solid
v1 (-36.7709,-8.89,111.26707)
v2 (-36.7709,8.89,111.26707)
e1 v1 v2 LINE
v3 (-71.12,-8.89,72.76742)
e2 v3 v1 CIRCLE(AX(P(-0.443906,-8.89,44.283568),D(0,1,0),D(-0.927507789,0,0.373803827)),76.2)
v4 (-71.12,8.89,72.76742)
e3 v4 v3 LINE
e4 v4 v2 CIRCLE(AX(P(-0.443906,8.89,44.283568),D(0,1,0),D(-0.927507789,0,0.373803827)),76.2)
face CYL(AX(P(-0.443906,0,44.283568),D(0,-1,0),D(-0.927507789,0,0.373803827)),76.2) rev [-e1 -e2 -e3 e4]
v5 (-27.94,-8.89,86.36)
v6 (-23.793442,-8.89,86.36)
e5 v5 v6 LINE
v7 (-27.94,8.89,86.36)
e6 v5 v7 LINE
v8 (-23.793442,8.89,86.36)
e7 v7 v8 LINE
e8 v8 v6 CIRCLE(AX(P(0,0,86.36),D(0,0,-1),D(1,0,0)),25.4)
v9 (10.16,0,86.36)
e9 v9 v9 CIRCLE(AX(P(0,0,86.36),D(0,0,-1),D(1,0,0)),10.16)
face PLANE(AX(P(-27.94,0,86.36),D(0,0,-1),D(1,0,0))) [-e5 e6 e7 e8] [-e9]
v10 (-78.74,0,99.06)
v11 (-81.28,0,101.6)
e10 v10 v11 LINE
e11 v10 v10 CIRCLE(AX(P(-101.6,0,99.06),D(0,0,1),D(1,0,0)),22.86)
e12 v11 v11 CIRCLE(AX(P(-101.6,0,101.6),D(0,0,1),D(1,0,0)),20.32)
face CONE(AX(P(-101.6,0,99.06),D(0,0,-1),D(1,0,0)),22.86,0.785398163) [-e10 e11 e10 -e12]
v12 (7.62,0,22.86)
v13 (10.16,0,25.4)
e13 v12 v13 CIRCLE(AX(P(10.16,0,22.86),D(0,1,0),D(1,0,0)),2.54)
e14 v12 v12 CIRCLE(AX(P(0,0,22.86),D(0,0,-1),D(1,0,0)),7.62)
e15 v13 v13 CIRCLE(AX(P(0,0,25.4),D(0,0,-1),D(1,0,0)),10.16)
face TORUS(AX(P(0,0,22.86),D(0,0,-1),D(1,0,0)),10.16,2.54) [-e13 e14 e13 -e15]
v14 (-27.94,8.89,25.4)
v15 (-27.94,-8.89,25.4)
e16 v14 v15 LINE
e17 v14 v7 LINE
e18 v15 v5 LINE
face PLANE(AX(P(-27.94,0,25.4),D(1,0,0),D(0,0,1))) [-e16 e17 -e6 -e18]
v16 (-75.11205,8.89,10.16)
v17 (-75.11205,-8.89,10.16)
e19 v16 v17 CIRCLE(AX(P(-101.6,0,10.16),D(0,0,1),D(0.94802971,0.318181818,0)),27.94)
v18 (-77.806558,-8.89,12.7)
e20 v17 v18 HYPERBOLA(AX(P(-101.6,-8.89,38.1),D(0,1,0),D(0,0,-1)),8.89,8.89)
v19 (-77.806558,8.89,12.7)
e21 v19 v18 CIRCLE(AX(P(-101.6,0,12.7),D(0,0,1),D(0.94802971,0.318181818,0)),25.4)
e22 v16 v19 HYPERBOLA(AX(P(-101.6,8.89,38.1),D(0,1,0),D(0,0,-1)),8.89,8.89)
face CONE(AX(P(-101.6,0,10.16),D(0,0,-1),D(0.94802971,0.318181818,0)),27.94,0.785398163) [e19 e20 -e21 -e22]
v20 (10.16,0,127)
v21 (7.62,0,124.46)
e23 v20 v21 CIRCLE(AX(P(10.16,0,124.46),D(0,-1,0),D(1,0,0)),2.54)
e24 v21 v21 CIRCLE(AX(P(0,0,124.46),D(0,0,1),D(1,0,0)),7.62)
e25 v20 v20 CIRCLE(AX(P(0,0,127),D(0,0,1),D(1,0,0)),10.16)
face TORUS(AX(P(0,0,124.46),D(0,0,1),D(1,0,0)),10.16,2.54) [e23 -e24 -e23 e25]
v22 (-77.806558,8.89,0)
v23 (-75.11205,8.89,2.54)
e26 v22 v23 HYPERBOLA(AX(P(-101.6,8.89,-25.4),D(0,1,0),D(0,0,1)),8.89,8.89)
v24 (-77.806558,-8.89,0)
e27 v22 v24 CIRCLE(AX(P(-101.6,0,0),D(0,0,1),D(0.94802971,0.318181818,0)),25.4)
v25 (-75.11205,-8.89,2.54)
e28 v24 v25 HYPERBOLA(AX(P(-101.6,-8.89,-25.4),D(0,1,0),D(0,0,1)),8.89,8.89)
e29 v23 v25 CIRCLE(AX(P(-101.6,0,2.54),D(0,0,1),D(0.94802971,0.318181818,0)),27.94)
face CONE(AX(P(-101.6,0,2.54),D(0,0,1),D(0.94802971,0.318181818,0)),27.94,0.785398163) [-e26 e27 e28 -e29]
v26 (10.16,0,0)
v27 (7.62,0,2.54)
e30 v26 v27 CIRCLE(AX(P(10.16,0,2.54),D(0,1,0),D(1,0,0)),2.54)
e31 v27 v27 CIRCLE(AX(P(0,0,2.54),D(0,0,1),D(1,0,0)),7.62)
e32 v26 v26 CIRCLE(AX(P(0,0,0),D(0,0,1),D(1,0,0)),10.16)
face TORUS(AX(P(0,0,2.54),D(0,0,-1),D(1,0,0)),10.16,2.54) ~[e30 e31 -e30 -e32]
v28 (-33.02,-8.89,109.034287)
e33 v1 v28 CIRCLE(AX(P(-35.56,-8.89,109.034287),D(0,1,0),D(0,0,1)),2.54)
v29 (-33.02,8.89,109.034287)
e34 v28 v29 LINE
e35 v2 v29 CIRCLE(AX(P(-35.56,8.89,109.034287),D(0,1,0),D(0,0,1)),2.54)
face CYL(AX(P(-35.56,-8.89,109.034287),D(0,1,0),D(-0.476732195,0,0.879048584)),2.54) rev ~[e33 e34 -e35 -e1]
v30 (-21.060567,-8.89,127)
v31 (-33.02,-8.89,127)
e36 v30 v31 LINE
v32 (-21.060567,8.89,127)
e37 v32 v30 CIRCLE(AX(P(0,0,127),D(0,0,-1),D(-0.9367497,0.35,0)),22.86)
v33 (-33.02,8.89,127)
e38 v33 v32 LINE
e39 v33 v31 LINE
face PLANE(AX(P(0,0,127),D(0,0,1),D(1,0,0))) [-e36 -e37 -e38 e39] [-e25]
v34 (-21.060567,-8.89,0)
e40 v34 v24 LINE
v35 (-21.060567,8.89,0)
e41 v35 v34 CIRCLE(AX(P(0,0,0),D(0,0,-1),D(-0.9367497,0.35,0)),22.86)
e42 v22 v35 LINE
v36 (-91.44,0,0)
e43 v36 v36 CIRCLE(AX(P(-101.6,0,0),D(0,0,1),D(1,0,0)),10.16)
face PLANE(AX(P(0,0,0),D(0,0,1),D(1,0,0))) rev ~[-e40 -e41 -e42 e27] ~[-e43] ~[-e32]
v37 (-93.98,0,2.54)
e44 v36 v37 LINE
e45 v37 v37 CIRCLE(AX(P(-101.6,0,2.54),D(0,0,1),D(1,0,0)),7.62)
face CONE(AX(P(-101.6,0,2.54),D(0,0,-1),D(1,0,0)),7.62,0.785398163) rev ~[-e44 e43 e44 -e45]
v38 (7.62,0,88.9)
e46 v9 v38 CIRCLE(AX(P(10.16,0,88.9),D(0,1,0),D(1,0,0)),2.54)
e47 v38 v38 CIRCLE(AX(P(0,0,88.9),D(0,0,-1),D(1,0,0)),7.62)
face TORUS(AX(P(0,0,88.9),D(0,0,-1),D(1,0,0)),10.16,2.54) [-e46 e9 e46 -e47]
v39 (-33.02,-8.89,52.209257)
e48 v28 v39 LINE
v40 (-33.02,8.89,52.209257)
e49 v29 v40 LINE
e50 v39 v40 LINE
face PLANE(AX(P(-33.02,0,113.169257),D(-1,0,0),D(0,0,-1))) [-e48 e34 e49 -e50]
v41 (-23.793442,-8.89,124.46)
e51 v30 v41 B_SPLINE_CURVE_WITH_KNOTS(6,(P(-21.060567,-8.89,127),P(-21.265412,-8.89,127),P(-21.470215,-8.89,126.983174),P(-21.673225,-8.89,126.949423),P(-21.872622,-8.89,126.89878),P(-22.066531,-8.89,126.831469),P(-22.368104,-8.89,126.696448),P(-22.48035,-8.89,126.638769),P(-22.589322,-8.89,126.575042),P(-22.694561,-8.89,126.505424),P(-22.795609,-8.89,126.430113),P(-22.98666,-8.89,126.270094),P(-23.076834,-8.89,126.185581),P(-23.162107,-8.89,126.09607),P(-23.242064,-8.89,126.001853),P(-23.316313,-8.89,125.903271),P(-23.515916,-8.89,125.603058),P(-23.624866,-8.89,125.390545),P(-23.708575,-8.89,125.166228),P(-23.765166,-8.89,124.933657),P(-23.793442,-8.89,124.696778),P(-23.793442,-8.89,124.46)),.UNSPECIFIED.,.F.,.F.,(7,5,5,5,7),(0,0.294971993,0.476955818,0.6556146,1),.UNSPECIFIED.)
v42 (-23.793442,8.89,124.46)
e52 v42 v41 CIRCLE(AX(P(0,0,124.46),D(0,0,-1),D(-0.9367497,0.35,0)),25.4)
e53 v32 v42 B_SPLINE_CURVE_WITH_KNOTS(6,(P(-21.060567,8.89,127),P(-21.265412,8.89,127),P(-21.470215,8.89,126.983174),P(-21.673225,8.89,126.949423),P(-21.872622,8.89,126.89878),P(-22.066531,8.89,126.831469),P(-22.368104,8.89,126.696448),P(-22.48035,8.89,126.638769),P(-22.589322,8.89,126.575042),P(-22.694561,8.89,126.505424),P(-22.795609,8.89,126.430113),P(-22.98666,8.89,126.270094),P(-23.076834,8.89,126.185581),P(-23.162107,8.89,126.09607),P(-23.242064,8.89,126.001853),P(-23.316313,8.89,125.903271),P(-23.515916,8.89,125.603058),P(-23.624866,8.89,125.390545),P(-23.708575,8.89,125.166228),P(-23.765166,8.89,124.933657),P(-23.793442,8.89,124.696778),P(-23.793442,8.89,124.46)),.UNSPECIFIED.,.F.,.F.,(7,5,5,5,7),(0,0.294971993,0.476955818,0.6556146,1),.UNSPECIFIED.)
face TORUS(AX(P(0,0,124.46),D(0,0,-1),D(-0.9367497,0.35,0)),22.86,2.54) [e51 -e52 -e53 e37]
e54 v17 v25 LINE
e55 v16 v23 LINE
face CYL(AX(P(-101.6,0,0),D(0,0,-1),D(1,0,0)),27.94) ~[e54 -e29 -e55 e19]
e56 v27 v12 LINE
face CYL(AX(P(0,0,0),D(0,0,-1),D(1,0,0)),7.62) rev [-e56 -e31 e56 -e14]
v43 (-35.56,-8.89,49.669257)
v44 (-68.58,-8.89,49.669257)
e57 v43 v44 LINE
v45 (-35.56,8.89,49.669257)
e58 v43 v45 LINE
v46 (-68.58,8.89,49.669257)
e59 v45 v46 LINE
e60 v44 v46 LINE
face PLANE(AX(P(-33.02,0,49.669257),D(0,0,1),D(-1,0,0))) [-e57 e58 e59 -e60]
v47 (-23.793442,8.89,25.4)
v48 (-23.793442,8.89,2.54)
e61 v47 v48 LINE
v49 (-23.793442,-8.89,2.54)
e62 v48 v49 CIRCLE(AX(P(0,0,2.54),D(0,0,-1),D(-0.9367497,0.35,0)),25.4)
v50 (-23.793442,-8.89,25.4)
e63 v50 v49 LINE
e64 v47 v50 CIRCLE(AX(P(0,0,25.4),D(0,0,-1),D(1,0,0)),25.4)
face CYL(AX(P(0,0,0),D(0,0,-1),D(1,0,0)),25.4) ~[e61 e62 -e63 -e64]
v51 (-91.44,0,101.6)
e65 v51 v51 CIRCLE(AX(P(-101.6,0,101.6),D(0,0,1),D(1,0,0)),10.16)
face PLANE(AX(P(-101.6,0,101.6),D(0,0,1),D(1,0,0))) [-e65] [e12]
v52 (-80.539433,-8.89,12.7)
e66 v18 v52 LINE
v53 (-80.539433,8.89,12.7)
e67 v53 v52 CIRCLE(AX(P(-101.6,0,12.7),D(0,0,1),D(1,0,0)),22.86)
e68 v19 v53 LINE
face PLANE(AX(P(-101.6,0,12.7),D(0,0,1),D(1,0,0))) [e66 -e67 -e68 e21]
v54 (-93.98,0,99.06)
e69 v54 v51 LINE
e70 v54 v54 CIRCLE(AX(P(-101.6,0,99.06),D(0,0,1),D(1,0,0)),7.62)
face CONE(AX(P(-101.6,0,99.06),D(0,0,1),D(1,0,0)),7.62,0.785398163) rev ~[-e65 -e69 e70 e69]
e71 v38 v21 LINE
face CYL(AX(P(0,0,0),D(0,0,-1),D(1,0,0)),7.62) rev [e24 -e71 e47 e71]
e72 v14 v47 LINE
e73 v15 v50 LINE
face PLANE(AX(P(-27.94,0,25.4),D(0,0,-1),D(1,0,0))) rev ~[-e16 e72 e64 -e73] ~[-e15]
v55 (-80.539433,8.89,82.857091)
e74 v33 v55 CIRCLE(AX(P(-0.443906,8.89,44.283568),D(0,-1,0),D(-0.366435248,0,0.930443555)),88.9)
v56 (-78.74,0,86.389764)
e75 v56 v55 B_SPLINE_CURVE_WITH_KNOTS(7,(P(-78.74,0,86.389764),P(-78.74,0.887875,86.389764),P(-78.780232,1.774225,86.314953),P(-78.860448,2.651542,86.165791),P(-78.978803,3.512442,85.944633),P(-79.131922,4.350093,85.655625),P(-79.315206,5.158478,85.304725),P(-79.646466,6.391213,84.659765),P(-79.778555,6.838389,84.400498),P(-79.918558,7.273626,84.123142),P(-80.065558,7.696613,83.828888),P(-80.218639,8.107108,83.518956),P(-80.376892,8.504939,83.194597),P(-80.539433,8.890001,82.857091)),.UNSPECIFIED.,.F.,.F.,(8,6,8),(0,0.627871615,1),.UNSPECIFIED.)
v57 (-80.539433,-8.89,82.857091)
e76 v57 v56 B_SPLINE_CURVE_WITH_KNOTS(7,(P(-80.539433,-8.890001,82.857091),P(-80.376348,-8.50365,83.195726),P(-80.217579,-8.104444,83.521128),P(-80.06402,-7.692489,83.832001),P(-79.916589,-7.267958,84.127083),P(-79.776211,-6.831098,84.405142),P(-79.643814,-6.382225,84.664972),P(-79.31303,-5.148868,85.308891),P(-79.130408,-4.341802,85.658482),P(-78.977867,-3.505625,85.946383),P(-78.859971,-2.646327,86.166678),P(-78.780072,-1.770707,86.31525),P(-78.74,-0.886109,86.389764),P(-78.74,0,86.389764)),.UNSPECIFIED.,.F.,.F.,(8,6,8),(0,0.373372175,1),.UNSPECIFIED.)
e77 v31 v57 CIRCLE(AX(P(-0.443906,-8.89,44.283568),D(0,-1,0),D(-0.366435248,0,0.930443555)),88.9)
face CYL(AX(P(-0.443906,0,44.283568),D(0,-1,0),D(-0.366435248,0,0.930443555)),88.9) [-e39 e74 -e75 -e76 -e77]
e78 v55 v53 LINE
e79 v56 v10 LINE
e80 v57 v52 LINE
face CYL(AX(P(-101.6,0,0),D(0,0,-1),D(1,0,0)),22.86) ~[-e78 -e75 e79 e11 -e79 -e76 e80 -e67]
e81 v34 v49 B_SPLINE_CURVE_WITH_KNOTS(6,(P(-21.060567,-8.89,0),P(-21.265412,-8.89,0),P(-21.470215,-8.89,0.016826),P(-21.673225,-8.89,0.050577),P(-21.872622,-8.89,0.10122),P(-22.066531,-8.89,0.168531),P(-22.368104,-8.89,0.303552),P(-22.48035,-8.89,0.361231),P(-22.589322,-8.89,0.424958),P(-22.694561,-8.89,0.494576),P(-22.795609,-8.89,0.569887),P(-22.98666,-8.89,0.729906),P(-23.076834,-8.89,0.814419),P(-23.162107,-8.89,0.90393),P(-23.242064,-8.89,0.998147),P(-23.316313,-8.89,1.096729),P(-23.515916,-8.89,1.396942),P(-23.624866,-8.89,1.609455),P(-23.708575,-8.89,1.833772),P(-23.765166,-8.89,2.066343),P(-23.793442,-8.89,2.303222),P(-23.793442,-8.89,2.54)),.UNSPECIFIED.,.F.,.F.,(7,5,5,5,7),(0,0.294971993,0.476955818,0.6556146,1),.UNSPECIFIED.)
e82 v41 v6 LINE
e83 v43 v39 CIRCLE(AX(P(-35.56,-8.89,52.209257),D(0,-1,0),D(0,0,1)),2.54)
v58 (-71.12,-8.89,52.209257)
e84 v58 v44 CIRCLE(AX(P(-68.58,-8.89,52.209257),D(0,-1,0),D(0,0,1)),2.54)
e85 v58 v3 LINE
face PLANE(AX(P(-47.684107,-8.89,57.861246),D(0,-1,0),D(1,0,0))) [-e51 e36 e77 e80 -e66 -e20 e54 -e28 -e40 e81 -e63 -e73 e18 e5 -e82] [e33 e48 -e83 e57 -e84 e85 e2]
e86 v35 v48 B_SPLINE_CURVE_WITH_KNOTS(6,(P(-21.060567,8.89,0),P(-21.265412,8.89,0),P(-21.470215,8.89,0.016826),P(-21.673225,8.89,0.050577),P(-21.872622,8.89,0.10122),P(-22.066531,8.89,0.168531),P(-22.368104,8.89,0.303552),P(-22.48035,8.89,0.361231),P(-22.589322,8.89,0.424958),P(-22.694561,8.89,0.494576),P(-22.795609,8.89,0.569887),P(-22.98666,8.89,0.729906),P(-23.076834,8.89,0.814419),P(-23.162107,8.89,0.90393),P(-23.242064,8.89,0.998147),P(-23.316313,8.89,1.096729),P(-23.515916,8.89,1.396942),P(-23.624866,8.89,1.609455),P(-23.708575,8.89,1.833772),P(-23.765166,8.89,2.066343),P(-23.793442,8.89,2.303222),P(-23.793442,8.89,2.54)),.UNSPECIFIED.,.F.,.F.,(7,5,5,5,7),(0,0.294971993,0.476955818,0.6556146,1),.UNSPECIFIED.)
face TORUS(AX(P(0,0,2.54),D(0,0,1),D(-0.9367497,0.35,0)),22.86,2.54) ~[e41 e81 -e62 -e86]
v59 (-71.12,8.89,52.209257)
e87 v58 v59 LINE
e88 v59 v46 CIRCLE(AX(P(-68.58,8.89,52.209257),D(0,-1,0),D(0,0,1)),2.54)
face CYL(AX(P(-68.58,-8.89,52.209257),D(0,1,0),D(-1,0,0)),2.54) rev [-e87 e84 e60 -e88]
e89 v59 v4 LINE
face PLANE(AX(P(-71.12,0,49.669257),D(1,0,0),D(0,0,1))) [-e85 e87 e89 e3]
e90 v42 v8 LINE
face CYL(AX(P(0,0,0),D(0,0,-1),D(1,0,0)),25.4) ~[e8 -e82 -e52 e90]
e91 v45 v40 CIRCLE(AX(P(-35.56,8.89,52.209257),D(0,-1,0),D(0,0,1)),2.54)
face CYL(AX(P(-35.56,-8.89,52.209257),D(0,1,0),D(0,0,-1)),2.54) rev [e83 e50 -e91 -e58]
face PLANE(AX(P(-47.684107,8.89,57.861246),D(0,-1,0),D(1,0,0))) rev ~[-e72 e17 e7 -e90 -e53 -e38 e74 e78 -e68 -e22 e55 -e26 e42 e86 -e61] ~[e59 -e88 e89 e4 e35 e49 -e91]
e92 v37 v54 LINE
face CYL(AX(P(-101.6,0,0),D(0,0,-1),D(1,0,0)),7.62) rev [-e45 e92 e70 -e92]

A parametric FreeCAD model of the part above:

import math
import FreeCAD as App
import Part
import Sketcher

V = App.Vector
Q = App.Units.Quantity


def edges_at(feature, points):
    """Names of the edges that pass closest to the given points."""
    edges = feature.Shape.Edges
    near = lambda p: min(range(len(edges)), key=lambda i: edges[i].distToShape(Part.Vertex(*p))[0])
    return sorted({f"Edge{near(p) + 1}" for p in points})


def add_polygon(sketch, points):
    """Adds a closed chain of lines whose ends are joined by coincident constraints."""
    first, n = sketch.GeometryCount, len(points)
    for a, b in zip(points, points[1:] + points[:1]):
        sketch.addGeometry(Part.LineSegment(App.Vector(*a, 0), App.Vector(*b, 0)), False)
    for i in range(n):
        sketch.addConstraint(Sketcher.Constraint("Coincident", first + i, 2, first + (i + 1) % n, 1))

doc = App.newDocument("Part")
body = doc.addObject("PartDesign::Body", "Body")

# Sketch on XY plane
sketch1 = doc.addObject("Sketcher::SketchObject", "Sketch")
body.addObject(sketch1)
sketch1.AttachmentSupport = (doc.XY_Plane, [""])
sketch1.MapMode = "FlatFace"
sketch1.addGeometry(Part.Circle(V(0, 0, 0), V(0, 0, 1), 25), False)
sketch1.addGeometry(Part.Circle(V(0, 0, 0), V(0, 0, 1), 8), False)
sketch1.addConstraint(Sketcher.Constraint("Coincident", 0, 3, -1, 1))
sketch1.addConstraint(Sketcher.Constraint("Coincident", 1, 3, -1, 1))
sketch1.addConstraint(Sketcher.Constraint("Diameter", 0, Q("2 in")))
sketch1.addConstraint(Sketcher.Constraint("Diameter", 1, Q("0.6 in")))
pad1 = doc.addObject("PartDesign::Pad", "Pad")
body.addObject(pad1)
pad1.Profile = sketch1
pad1.Length = Q("5 in")
body2 = doc.addObject("PartDesign::Body", "Body001")

# Sketch on XY plane
sketch2 = doc.addObject("Sketcher::SketchObject", "Sketch001")
body2.addObject(sketch2)
sketch2.AttachmentSupport = (doc.getObject("XY_Plane001"), [""])
sketch2.MapMode = "FlatFace"
sketch2.addGeometry(Part.Circle(V(-102, 0, 0), V(0, 0, 1), 23), False)
sketch2.addGeometry(Part.Circle(V(-102, 0, 0), V(0, 0, 1), 8), False)
sketch2.addConstraint(Sketcher.Constraint("Coincident", 1, 3, 0, 3))
sketch2.addConstraint(Sketcher.Constraint("PointOnObject", 0, 3, -1))
sketch2.addConstraint(Sketcher.Constraint("Diameter", 0, Q("1.8 in")))
sketch2.addConstraint(Sketcher.Constraint("Diameter", 1, Q("0.6 in")))
sketch2.addConstraint(Sketcher.Constraint("DistanceX", 0, 3, -1, 1, Q("4 in")))
pad2 = doc.addObject("PartDesign::Pad", "Pad001")
body2.addObject(pad2)
pad2.Profile = sketch2
pad2.Length = Q("4 in")
body.AllowCompound = True
doc.recompute()

boolean = doc.addObject("PartDesign::Boolean", "Boolean")
body.addObject(boolean)
boolean.Type = "Fuse"
boolean.addObjects([body2])

# Sketch on XZ plane
sketch3 = doc.addObject("Sketcher::SketchObject", "Sketch002")
body.addObject(sketch3)
sketch3.AttachmentSupport = (doc.XZ_Plane, [""])
sketch3.MapMode = "FlatFace"
sketch3.addGeometry(Part.LineSegment(V(-20, 0, 0), V(-20, 127, 0)), False)
sketch3.addGeometry(Part.LineSegment(V(-20, 127, 0), V(-33, 127, 0)), False)
sketch3.addGeometry(Part.ArcOfCircle(Part.Circle(V(0, 44, 0), V(0, 0, 1), 89), math.radians(111), math.radians(155)), False)
sketch3.addGeometry(Part.LineSegment(V(-81, 81, 0), V(-81, 0, 0)), False)
sketch3.addGeometry(Part.LineSegment(V(-81, 0, 0), V(-20, 0, 0)), False)
sketch3.addGeometry(Part.LineSegment(V(-71, 50, 0), V(-71, 73, 0)), False)
sketch3.addGeometry(Part.ArcOfCircle(Part.Circle(V(0, 44, 0), V(0, 0, 1), 76), math.radians(115), math.radians(158)), False)
sketch3.addGeometry(Part.LineSegment(V(-33, 113, 0), V(-33, 50, 0)), False)
sketch3.addGeometry(Part.LineSegment(V(-33, 50, 0), V(-71, 50, 0)), False)
sketch3.addConstraint(Sketcher.Constraint("Coincident", 0, 2, 1, 1))
sketch3.addConstraint(Sketcher.Constraint("Coincident", 1, 2, 2, 1))
sketch3.addConstraint(Sketcher.Constraint("Coincident", 2, 2, 3, 1))
sketch3.addConstraint(Sketcher.Constraint("Coincident", 3, 2, 4, 1))
sketch3.addConstraint(Sketcher.Constraint("Coincident", 4, 2, 0, 1))
sketch3.addConstraint(Sketcher.Constraint("Coincident", 5, 2, 6, 2))
sketch3.addConstraint(Sketcher.Constraint("Coincident", 6, 1, 7, 1))
sketch3.addConstraint(Sketcher.Constraint("Coincident", 7, 2, 8, 1))
sketch3.addConstraint(Sketcher.Constraint("Coincident", 8, 2, 5, 1))
sketch3.addConstraint(Sketcher.Constraint("Vertical", 0))
sketch3.addConstraint(Sketcher.Constraint("Horizontal", 1))
sketch3.addConstraint(Sketcher.Constraint("Vertical", 3))
sketch3.addConstraint(Sketcher.Constraint("Horizontal", 4))
sketch3.addConstraint(Sketcher.Constraint("Vertical", 5))
sketch3.addConstraint(Sketcher.Constraint("Vertical", 7))
sketch3.addConstraint(Sketcher.Constraint("Horizontal", 8))
sketch3.addConstraint(Sketcher.Constraint("Coincident", 6, 3, 2, 3))
sketch3.addConstraint(Sketcher.Constraint("PointOnObject", 3, 2, -1))
sketch3.addConstraint(Sketcher.Constraint("Vertical", 1, 2, 6, 1))
sketch3.addConstraint(Sketcher.Constraint("Radius", 6, Q("3 in")))
sketch3.addConstraint(Sketcher.Constraint("Radius", 2, Q("3.5 in")))
sketch3.addConstraint(Sketcher.Constraint("DistanceY", 0, 1, 0, 2, Q("5 in")))
sketch3.addConstraint(Sketcher.Constraint("DistanceX", 1, 2, 1, 1, Q("0.5 in")))
sketch3.addConstraint(Sketcher.Constraint("DistanceX", 4, 1, 4, 2, Q("2.4 in")))
sketch3.addConstraint(Sketcher.Constraint("DistanceX", 8, 2, 8, 1, Q("1.5 in")))
sketch3.addConstraint(Sketcher.Constraint("DistanceY", 3, 2, 3, 1, Q("3.2 in")))
sketch3.addConstraint(Sketcher.Constraint("DistanceY", 7, 2, 7, 1, Q("2.5 in")))
sketch3.addConstraint(Sketcher.Constraint("DistanceX", 0, 2, -1, 1, Q("0.8 in")))
pad3 = doc.addObject("PartDesign::Pad", "Pad002")
body.addObject(pad3)
pad3.Profile = sketch3
pad3.Length = Q("0.7 in")
pad3.Midplane = True

# Sketch on XZ plane
sketch4 = doc.addObject("Sketcher::SketchObject", "Sketch003")
body.addObject(sketch4)
sketch4.AttachmentSupport = (doc.XZ_Plane, [""])
sketch4.MapMode = "FlatFace"
add_polygon(sketch4, [(-28, 86), (-28, 25), (33, 25), (33, 86)])  # lines 0-3
sketch4.addConstraint(Sketcher.Constraint("Vertical", 0))
sketch4.addConstraint(Sketcher.Constraint("Horizontal", 1))
sketch4.addConstraint(Sketcher.Constraint("Vertical", 2))
sketch4.addConstraint(Sketcher.Constraint("Horizontal", 3))
sketch4.addConstraint(Sketcher.Constraint("Equal", 3, 0))
sketch4.addConstraint(Sketcher.Constraint("DistanceX", 1, 1, 1, 2, Q("2.4 in")))
sketch4.addConstraint(Sketcher.Constraint("DistanceY", -1, 1, 0, 2, Q("1 in")))
sketch4.addConstraint(Sketcher.Constraint("DistanceX", 0, 2, -1, 1, Q("1.1 in")))
pocket1 = doc.addObject("PartDesign::Pocket", "Pocket")
body.addObject(pocket1)
pocket1.Profile = sketch4
pocket1.Length = Q("4 in")
pocket1.Midplane = True
doc.recompute()

fillet = doc.addObject("PartDesign::Fillet", "Fillet")
body.addObject(fillet)
fillet.Base = (pocket1, edges_at(pocket1, [
    (25.4, 0, 127),
    (25.4, 0, 0),
    (-7.62, 0, 86.36),
    (-7.62, 0, 0),
    (-7.62, 0, 127),
    (-7.62, 0, 25.4),
    (-33.02, 0, 49.669),
    (-71.12, 0, 49.669),
    (-33.02, 0, 113.169),
]))
fillet.Radius = Q("0.1 in")

# Sketch on XY plane
sketch5 = doc.addObject("Sketcher::SketchObject", "Sketch004")
body.addObject(sketch5)
sketch5.AttachmentSupport = (doc.XY_Plane, [""])
sketch5.MapMode = "FlatFace"
sketch5.addGeometry(Part.Circle(V(-102, 0, 0), V(0, 0, 1), 28), False)
sketch5.addGeometry(Part.Circle(V(-102, 0, 0), V(0, 0, 1), 23), False)
sketch5.addConstraint(Sketcher.Constraint("Coincident", 1, 3, 0, 3))
sketch5.addConstraint(Sketcher.Constraint("PointOnObject", 0, 3, -1))
sketch5.addConstraint(Sketcher.Constraint("Diameter", 0, Q("2.2 in")))
sketch5.addConstraint(Sketcher.Constraint("Diameter", 1, Q("1.8 in")))
sketch5.addConstraint(Sketcher.Constraint("DistanceX", 0, 3, -1, 1, Q("4 in")))
pad4 = doc.addObject("PartDesign::Pad", "Pad003")
body.addObject(pad4)
pad4.Profile = sketch5
pad4.Length = Q("0.5 in")
doc.recompute()

chamfer = doc.addObject("PartDesign::Chamfer", "Chamfer")
body.addObject(chamfer)
chamfer.Base = (pad4, edges_at(pad4, [
    (-129.54, 0, 0),
    (-109.22, 0, 0),
    (-129.54, 0, 12.7),
    (-124.46, 0, 101.6),
    (-109.22, 0, 101.6),
]))
chamfer.Size = Q("0.1 in")

doc.recompute()
